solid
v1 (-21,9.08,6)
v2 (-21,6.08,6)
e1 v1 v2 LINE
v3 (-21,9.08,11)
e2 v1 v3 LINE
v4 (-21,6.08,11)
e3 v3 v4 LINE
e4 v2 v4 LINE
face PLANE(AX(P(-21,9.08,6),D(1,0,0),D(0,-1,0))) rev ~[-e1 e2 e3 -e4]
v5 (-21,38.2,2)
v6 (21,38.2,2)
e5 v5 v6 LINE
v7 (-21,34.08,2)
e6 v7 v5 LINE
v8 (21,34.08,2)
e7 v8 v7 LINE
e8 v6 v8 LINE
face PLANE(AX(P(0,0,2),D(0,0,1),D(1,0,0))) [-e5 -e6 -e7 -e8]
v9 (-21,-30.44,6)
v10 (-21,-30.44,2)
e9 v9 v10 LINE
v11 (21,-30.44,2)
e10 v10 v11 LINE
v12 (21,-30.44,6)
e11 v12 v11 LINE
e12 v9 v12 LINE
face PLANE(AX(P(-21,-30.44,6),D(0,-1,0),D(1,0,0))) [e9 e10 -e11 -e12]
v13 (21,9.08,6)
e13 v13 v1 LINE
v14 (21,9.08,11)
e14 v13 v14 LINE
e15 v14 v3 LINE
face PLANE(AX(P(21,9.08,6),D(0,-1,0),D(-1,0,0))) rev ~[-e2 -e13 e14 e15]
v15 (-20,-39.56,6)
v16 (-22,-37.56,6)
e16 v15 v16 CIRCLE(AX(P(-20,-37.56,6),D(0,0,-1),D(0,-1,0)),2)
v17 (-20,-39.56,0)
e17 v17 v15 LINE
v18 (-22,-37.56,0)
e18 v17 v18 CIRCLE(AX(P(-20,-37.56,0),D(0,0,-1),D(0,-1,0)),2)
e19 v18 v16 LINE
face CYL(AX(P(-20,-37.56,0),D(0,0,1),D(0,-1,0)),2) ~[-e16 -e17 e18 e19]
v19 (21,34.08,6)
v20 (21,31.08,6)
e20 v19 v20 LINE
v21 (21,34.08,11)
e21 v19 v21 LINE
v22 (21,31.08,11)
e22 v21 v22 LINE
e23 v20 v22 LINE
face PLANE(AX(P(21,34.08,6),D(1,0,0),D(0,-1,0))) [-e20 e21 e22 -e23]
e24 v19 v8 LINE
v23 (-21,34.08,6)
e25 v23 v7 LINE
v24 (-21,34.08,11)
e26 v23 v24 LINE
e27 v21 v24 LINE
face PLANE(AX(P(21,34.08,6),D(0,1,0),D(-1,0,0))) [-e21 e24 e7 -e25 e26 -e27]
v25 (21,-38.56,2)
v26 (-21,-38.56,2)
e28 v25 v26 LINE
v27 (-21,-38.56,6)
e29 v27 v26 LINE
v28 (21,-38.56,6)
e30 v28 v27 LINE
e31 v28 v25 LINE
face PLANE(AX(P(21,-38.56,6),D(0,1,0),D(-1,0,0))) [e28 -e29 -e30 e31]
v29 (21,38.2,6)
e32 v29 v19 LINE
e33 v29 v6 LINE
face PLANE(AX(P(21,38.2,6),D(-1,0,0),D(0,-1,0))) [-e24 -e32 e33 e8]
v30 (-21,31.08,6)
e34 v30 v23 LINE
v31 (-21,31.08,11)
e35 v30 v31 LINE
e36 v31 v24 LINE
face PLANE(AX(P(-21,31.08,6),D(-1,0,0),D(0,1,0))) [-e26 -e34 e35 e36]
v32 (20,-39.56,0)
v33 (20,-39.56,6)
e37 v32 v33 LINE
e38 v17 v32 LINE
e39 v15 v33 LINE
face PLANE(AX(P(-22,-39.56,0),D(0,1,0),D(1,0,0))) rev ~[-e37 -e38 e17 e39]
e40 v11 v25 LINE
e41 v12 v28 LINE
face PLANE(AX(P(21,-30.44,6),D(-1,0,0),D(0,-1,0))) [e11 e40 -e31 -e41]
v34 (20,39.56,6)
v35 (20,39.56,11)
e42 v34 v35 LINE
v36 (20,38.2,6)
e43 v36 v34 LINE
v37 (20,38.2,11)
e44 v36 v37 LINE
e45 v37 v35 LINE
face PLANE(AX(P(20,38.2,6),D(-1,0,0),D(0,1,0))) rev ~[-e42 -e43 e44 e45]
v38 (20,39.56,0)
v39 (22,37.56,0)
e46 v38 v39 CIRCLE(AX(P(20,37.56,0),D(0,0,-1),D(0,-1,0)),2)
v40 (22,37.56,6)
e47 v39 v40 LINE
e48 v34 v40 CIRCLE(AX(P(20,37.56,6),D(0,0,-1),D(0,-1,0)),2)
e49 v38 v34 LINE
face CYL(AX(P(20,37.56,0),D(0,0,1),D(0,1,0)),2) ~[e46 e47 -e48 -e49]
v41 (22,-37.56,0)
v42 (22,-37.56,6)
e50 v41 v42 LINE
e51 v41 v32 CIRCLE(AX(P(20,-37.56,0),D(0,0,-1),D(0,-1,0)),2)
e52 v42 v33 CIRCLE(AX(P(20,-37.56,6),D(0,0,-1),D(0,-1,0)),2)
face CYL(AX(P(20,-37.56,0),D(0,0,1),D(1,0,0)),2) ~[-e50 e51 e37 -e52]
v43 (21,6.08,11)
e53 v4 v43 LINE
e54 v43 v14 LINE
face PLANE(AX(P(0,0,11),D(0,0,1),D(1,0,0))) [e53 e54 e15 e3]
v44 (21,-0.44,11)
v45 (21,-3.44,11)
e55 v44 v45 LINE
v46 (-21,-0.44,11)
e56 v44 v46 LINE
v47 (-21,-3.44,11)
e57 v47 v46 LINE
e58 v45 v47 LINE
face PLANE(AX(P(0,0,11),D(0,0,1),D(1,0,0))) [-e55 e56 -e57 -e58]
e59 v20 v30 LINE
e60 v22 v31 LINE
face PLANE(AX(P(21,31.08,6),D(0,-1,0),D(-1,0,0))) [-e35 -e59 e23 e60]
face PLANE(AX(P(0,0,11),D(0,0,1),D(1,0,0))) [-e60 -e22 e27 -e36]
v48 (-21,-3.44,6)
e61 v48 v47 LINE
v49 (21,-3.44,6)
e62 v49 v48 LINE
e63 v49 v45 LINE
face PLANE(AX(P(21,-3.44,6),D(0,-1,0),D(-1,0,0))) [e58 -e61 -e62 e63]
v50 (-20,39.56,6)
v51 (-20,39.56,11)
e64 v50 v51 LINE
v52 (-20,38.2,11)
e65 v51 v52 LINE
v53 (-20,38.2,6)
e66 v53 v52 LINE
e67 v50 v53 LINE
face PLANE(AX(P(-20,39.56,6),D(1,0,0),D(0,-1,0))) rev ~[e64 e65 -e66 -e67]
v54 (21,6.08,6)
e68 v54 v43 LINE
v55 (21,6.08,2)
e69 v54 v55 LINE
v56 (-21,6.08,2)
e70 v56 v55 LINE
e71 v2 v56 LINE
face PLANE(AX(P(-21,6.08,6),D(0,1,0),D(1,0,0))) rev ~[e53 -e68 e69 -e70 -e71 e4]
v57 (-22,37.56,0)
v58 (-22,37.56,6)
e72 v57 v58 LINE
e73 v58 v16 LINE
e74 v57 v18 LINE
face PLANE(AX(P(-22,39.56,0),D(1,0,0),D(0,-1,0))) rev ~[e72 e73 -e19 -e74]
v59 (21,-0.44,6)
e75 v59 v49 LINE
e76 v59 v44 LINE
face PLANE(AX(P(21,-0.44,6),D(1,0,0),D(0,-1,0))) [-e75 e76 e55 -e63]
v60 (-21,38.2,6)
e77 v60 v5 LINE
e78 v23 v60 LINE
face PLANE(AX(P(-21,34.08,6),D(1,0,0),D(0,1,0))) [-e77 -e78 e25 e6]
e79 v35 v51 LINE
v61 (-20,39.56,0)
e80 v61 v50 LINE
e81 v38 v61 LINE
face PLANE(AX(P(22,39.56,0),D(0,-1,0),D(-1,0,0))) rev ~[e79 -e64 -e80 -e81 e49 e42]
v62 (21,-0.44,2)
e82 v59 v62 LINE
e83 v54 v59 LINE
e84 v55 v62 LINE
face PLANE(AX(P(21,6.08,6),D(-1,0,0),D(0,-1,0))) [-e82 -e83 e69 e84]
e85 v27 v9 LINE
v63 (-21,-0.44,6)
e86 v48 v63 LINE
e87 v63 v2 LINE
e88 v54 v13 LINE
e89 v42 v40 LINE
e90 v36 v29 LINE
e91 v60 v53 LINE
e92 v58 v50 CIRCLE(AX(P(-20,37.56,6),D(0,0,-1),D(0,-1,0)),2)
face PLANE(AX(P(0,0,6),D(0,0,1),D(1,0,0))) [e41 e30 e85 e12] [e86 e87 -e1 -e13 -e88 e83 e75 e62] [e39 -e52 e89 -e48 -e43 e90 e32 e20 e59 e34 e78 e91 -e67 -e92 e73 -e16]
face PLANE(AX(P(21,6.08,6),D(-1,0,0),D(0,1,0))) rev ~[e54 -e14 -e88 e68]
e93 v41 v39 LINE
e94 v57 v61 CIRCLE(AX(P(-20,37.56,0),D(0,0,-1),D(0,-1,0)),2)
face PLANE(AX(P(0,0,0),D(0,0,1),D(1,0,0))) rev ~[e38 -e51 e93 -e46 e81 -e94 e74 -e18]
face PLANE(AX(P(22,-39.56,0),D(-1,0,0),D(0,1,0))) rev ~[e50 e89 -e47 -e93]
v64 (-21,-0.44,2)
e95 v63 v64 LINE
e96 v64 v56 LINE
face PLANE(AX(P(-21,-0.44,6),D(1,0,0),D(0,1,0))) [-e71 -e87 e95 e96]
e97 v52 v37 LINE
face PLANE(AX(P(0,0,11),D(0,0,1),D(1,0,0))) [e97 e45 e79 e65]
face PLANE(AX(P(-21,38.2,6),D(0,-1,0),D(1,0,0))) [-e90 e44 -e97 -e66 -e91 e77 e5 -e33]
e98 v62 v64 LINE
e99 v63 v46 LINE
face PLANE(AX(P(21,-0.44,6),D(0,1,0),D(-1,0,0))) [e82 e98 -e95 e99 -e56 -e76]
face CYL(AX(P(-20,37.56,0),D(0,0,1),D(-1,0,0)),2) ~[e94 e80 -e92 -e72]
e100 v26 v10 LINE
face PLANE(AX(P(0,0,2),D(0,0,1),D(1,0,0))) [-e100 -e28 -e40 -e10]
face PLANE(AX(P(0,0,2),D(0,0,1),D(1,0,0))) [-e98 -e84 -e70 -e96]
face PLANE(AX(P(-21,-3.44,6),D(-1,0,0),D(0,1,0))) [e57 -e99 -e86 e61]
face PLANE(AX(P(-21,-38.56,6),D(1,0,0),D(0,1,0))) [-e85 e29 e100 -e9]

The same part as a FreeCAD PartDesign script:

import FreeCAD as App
import Part
import Sketcher

V = App.Vector
Q = App.Units.Quantity


def edges_at(feature, points):
    """Names of the edges that pass closest to the given points."""
    edges = feature.Shape.Edges
    near = lambda p: min(range(len(edges)), key=lambda i: edges[i].distToShape(Part.Vertex(*p))[0])
    return sorted({f"Edge{near(p) + 1}" for p in points})


def add_polygon(sketch, points):
    """Adds a closed chain of lines whose ends are joined by coincident constraints."""
    first, n = sketch.GeometryCount, len(points)
    for a, b in zip(points, points[1:] + points[:1]):
        sketch.addGeometry(Part.LineSegment(App.Vector(*a, 0), App.Vector(*b, 0)), False)
    for i in range(n):
        sketch.addConstraint(Sketcher.Constraint("Coincident", first + i, 2, first + (i + 1) % n, 1))

doc = App.newDocument("Part")
body = doc.addObject("PartDesign::Body", "Body")

sketch1 = body.newObject("Sketcher::SketchObject", "Sketch")
sketch1.AttachmentSupport = (doc.getObject("XY_Plane"), [""])
sketch1.MapMode = "FlatFace"
add_polygon(sketch1, [(-22, 40), (-22, -40), (22, -40), (22, 40)])
sketch1.addConstraint([
    Sketcher.Constraint("Vertical", 0),
    Sketcher.Constraint("Horizontal", 1),
    Sketcher.Constraint("Vertical", 2),
    Sketcher.Constraint("Horizontal", 3),
    Sketcher.Constraint("Symmetric", 0, 2, 2, 2, -1, 1),
    Sketcher.Constraint("DistanceX", 1, 1, 1, 2, Q("44 mm")),
    Sketcher.Constraint("DistanceY", 0, 2, 0, 1, Q("79.12 mm")),
])
pad1 = body.newObject("PartDesign::Pad", "Pad")
pad1.Profile = sketch1
pad1.Length = 6

sketch2 = body.newObject("Sketcher::SketchObject", "Sketch001")
sketch2.AttachmentSupport = (doc.getObject("XY_Plane"), [""])
sketch2.MapMode = "FlatFace"
sketch2.AttachmentOffset = App.Placement(V(0, 0, 6), App.Rotation())
add_polygon(sketch2, [(-21, -39), (21, -39), (21, -30), (-21, -30)])
sketch2.addConstraint([
    Sketcher.Constraint("Horizontal", 0),
    Sketcher.Constraint("Vertical", 1),
    Sketcher.Constraint("Horizontal", 2),
    Sketcher.Constraint("Vertical", 3),
    Sketcher.Constraint("DistanceX", 0, 1, 0, 2, Q("42 mm")),
    Sketcher.Constraint("DistanceX", -1, 1, 0, 2, Q("21 mm")),
    Sketcher.Constraint("DistanceY", 1, 1, 1, 2, Q("8.12 mm")),
    Sketcher.Constraint("DistanceY", 0, 2, -1, 1, Q("38.56 mm")),
])
pocket1 = body.newObject("PartDesign::Pocket", "Pocket")
pocket1.Profile = sketch2
pocket1.Length = 4

sketch3 = body.newObject("Sketcher::SketchObject", "Sketch002")
sketch3.AttachmentSupport = (doc.getObject("XY_Plane"), [""])
sketch3.MapMode = "FlatFace"
sketch3.AttachmentOffset = App.Placement(V(0, 0, 6), App.Rotation())
add_polygon(sketch3, [(-21, 0), (21, 0), (21, 6), (-21, 6)])
sketch3.addConstraint([
    Sketcher.Constraint("Horizontal", 0),
    Sketcher.Constraint("Vertical", 1),
    Sketcher.Constraint("Horizontal", 2),
    Sketcher.Constraint("Vertical", 3),
    Sketcher.Constraint("DistanceX", 0, 1, 0, 2, Q("42 mm")),
    Sketcher.Constraint("DistanceX", -1, 1, 0, 2, Q("21 mm")),
    Sketcher.Constraint("DistanceY", 1, 1, 1, 2, Q("6.52 mm")),
    Sketcher.Constraint("DistanceY", 0, 2, -1, 1, Q("0.44 mm")),
])
pocket2 = body.newObject("PartDesign::Pocket", "Pocket001")
pocket2.Profile = sketch3
pocket2.Length = 4

sketch4 = body.newObject("Sketcher::SketchObject", "Sketch003")
sketch4.AttachmentSupport = (doc.getObject("XY_Plane"), [""])
sketch4.MapMode = "FlatFace"
sketch4.AttachmentOffset = App.Placement(V(0, 0, 6), App.Rotation())
add_polygon(sketch4, [(21, 38.2), (-21, 38.2), (-21, 34.1), (21, 34.1)])
sketch4.addConstraint([
    Sketcher.Constraint("Horizontal", 0),
    Sketcher.Constraint("Vertical", 1),
    Sketcher.Constraint("Horizontal", 2),
    Sketcher.Constraint("Vertical", 3),
    Sketcher.Constraint("DistanceX", 0, 2, 0, 1, Q("42 mm")),
    Sketcher.Constraint("DistanceX", 0, 2, -1, 1, Q("21 mm")),
    Sketcher.Constraint("DistanceY", 1, 2, 1, 1, Q("4.12 mm")),
    Sketcher.Constraint("DistanceY", -1, 1, 0, 2, Q("38.2 mm")),
])
pocket3 = body.newObject("PartDesign::Pocket", "Pocket002")
pocket3.Profile = sketch4
pocket3.Length = 4
doc.recompute()

fillet = body.newObject("PartDesign::Fillet", "Fillet")
fillet.Base = (pocket3, edges_at(pocket3, [(-22, 39.56, 3)]))
fillet.Radius = 2
doc.recompute()

fillet2 = body.newObject("PartDesign::Fillet", "Fillet001")
fillet2.Base = (fillet, edges_at(fillet, [(22, 39.56, 3)]))
fillet2.Radius = 2
doc.recompute()

fillet3 = body.newObject("PartDesign::Fillet", "Fillet002")
fillet3.Base = (fillet2, edges_at(fillet2, [(22, -39.56, 3)]))
fillet3.Radius = 2
doc.recompute()

fillet4 = body.newObject("PartDesign::Fillet", "Fillet003")
fillet4.Base = (fillet3, edges_at(fillet3, [(-22, -39.56, 3)]))
fillet4.Radius = 2

sketch5 = body.newObject("Sketcher::SketchObject", "Sketch004")
sketch5.AttachmentSupport = (doc.getObject("XY_Plane"), [""])
sketch5.MapMode = "FlatFace"
sketch5.AttachmentOffset = App.Placement(V(0, 0, 6), App.Rotation())
add_polygon(sketch5, [(20, 39.6), (-20, 39.6), (-20, 38.2), (20, 38.2)])
add_polygon(sketch5, [(21, 34.1), (-21, 34.1), (-21, 31.1), (21, 31.1)])
add_polygon(sketch5, [(-21, 6.1), (21, 6.1), (21, 9.1), (-21, 9.1)])
add_polygon(sketch5, [(21, -3.4), (21, -0.4), (-21, -0.4), (-21, -3.4)])
sketch5.addConstraint([
    Sketcher.Constraint("Horizontal", 0),
    Sketcher.Constraint("Vertical", 1),
    Sketcher.Constraint("Horizontal", 2),
    Sketcher.Constraint("Vertical", 3),
    Sketcher.Constraint("Horizontal", 4),
    Sketcher.Constraint("Vertical", 5),
    Sketcher.Constraint("Horizontal", 6),
    Sketcher.Constraint("Vertical", 7),
    Sketcher.Constraint("Horizontal", 8),
    Sketcher.Constraint("Vertical", 9),
    Sketcher.Constraint("Horizontal", 10),
    Sketcher.Constraint("Vertical", 11),
    Sketcher.Constraint("Vertical", 12),
    Sketcher.Constraint("Horizontal", 13),
    Sketcher.Constraint("Vertical", 14),
    Sketcher.Constraint("Horizontal", 15),
    Sketcher.Constraint("Vertical", 7, 2, 8, 2),
    Sketcher.Constraint("Vertical", 5, 2, 10, 2),
    Sketcher.Constraint("Vertical", 9, 2, 12, 2),
    Sketcher.Constraint("Vertical", 11, 2, 13, 2),
    Sketcher.Constraint("Equal", 7, 9),
    Sketcher.Constraint("Equal", 11, 12),
    Sketcher.Constraint("DistanceY", 5, 2, 5, 1, Q("3 mm")),
    Sketcher.Constraint("DistanceX", 0, 2, 0, 1, Q("40 mm")),
    Sketcher.Constraint("DistanceX", 4, 2, 4, 1, Q("42 mm")),
    Sketcher.Constraint("DistanceX", 0, 2, -1, 1, Q("20 mm")),
    Sketcher.Constraint("DistanceX", 4, 2, -1, 1, Q("21 mm")),
    Sketcher.Constraint("DistanceY", 8, 2, 6, 2, Q("25 mm")),
    Sketcher.Constraint("DistanceY", 1, 2, 1, 1, Q("1.36 mm")),
    Sketcher.Constraint("DistanceY", -1, 1, 1, 2, Q("38.2 mm")),
    Sketcher.Constraint("DistanceY", -1, 1, 4, 2, Q("34.08 mm")),
    Sketcher.Constraint("DistanceY", 12, 2, -1, 1, Q("0.44 mm")),
])
pad2 = body.newObject("PartDesign::Pad", "Pad001")
pad2.Profile = sketch5
pad2.Length = 5

doc.recompute()
